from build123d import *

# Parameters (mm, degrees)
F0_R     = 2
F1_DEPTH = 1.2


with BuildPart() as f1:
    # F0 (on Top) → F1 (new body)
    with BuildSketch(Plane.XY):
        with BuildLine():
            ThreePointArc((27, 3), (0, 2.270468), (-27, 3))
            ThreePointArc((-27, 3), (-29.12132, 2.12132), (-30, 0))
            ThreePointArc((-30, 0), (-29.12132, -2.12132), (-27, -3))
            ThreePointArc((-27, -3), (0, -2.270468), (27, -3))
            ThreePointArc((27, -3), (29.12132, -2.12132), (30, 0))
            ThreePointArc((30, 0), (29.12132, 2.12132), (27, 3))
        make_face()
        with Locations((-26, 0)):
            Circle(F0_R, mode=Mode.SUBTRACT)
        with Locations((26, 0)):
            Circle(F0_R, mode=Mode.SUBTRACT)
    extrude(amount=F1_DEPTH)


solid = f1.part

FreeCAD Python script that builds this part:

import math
import FreeCAD as App
import Part
import Sketcher

doc = App.newDocument("Part")
body = doc.addObject("PartDesign::Body", "Body")

# Sketch on XY plane
sketch1 = doc.addObject("Sketcher::SketchObject", "Sketch")
body.addObject(sketch1)
sketch1.AttachmentSupport = (doc.XY_Plane, [""])
sketch1.MapMode = "FlatFace"
sketch1.addGeometry(Part.ArcOfCircle(Part.Circle(App.Vector(0, 502.3, 0), App.Vector(0, 0, 1), 500), math.radians(-93.1), math.radians(-86.9)), False)
sketch1.addGeometry(Part.ArcOfCircle(Part.Circle(App.Vector(-27, 0, 0), App.Vector(0, 0, 1), 3), math.radians(90), math.radians(180)), False)
sketch1.addGeometry(Part.ArcOfCircle(Part.Circle(App.Vector(-27, 0, 0), App.Vector(0, 0, 1), 3), math.radians(-180), math.radians(-90)), False)
sketch1.addGeometry(Part.ArcOfCircle(Part.Circle(App.Vector(0, -502.3, 0), App.Vector(0, 0, 1), 500), math.radians(86.9), math.radians(93.1)), False)
sketch1.addGeometry(Part.ArcOfCircle(Part.Circle(App.Vector(27, 0, 0), App.Vector(0, 0, 1), 3), math.radians(-90), math.radians(0)), False)
sketch1.addGeometry(Part.ArcOfCircle(Part.Circle(App.Vector(27, 0, 0), App.Vector(0, 0, 1), 3), math.radians(0), math.radians(90)), False)
sketch1.addGeometry(Part.Circle(App.Vector(-26, 0, 0), App.Vector(0, 0, 1), 2), False)
sketch1.addGeometry(Part.Circle(App.Vector(26, 0, 0), App.Vector(0, 0, 1), 2), False)
sketch1.addConstraint(Sketcher.Constraint("Coincident", 0, 1, 1, 1))
sketch1.addConstraint(Sketcher.Constraint("Tangent", 1, 2, 2, 1))
sketch1.addConstraint(Sketcher.Constraint("Coincident", 2, 2, 3, 2))
sketch1.addConstraint(Sketcher.Constraint("Coincident", 3, 1, 4, 1))
sketch1.addConstraint(Sketcher.Constraint("Tangent", 4, 2, 5, 1))
sketch1.addConstraint(Sketcher.Constraint("Coincident", 5, 2, 0, 2))
sketch1.addConstraint(Sketcher.Constraint("Equal", 1, 2))
sketch1.addConstraint(Sketcher.Constraint("Equal", 0, 3))
sketch1.addConstraint(Sketcher.Constraint("Equal", 2, 4))
sketch1.addConstraint(Sketcher.Constraint("Equal", 4, 5))
sketch1.addConstraint(Sketcher.Constraint("Equal", 6, 7))
sketch1.addConstraint(Sketcher.Constraint("Symmetric", 0, 3, 3, 3, -1, 1))
sketch1.addConstraint(Sketcher.Constraint("Symmetric", 1, 3, 4, 3, -1, 1))
sketch1.addConstraint(Sketcher.Constraint("Symmetric", 6, 3, 7, 3, -1, 1))
sketch1.addConstraint(Sketcher.Constraint("Symmetric", 2, 2, 3, 1, -2))
sketch1.addConstraint(Sketcher.Constraint("PointOnObject", 6, 3, -1))
sketch1.addConstraint(Sketcher.Constraint("PointOnObject", 1, 2, -1))
sketch1.addConstraint(Sketcher.Constraint("PointOnObject", 4, 2, -1))
sketch1.addConstraint(Sketcher.Constraint("Vertical", 2, 3, 0, 1))
sketch1.addConstraint(Sketcher.Constraint("Diameter", 6, 4.0))
sketch1.addConstraint(Sketcher.Constraint("Radius", 1, 3.000001))
sketch1.addConstraint(Sketcher.Constraint("DistanceX", 1, 3, -1, 1, 26.999999))
sketch1.addConstraint(Sketcher.Constraint("DistanceX", 6, 3, -1, 1, 26.0))
sketch1.addConstraint(Sketcher.Constraint("Radius", 0, 500.000149))
pad1 = doc.addObject("PartDesign::Pad", "Pad")
body.addObject(pad1)
pad1.Profile = sketch1
pad1.Length = 1.2

doc.recompute()
